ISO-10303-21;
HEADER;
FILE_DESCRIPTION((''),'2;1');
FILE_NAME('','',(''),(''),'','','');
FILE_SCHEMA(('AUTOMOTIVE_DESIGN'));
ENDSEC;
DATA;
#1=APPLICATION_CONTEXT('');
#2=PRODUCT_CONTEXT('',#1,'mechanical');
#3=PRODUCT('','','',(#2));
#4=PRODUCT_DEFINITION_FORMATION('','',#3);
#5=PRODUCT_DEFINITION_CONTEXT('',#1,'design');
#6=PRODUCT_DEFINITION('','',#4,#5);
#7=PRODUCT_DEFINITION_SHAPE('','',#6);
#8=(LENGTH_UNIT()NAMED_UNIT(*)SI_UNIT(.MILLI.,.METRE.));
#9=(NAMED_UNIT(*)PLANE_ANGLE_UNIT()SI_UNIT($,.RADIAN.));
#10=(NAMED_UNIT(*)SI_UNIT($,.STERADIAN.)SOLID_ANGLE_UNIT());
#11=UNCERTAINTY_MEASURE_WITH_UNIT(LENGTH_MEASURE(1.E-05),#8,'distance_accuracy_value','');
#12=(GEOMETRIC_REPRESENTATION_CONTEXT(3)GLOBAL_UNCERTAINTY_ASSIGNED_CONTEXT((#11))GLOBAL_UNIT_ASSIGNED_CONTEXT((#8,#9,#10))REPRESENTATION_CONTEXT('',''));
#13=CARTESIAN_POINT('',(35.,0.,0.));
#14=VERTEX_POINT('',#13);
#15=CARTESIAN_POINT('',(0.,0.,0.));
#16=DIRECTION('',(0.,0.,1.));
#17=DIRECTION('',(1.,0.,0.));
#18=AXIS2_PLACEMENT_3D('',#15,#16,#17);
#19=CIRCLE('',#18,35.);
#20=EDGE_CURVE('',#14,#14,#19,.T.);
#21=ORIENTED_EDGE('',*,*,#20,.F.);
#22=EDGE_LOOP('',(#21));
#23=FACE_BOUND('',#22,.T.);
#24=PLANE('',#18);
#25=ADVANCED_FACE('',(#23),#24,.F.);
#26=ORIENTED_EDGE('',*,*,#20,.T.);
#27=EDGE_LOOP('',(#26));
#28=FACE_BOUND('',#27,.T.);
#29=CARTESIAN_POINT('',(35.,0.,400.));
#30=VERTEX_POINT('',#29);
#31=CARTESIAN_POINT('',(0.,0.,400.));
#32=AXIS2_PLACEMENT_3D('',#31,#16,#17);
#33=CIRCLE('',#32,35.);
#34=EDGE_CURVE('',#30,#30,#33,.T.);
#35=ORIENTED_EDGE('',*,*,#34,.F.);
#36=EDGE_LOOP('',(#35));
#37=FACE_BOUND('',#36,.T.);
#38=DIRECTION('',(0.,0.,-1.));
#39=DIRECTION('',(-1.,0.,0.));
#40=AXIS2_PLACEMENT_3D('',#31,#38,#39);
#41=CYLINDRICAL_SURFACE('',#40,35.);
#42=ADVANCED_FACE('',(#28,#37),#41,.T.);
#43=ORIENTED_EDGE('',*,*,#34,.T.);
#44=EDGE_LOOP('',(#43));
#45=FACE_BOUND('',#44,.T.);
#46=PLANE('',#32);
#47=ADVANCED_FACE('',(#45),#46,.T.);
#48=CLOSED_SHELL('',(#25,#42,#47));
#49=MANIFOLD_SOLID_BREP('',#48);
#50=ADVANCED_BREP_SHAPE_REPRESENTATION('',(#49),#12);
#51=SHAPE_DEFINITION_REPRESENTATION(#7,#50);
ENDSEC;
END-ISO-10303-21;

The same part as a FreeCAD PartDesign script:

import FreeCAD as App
import Part
import Sketcher
Q = App.Units.Quantity

doc = App.newDocument("Part")
body = doc.addObject("PartDesign::Body", "Body")

# Sketch on XY plane
sketch1 = doc.addObject("Sketcher::SketchObject", "Sketch")
body.addObject(sketch1)
sketch1.AttachmentSupport = (doc.XY_Plane, [""])
sketch1.MapMode = "FlatFace"
sketch1.addGeometry(Part.Circle(App.Vector(0, 0, 0), App.Vector(0, 0, 1), 35), False)
sketch1.addConstraint(Sketcher.Constraint("Coincident", 0, 3, -1, 1))
sketch1.addConstraint(Sketcher.Constraint("Diameter", 0, Q("70 mm")))
pad1 = doc.addObject("PartDesign::Pad", "Pad")
body.addObject(pad1)
pad1.Profile = sketch1
pad1.Length = 400

doc.recompute()
